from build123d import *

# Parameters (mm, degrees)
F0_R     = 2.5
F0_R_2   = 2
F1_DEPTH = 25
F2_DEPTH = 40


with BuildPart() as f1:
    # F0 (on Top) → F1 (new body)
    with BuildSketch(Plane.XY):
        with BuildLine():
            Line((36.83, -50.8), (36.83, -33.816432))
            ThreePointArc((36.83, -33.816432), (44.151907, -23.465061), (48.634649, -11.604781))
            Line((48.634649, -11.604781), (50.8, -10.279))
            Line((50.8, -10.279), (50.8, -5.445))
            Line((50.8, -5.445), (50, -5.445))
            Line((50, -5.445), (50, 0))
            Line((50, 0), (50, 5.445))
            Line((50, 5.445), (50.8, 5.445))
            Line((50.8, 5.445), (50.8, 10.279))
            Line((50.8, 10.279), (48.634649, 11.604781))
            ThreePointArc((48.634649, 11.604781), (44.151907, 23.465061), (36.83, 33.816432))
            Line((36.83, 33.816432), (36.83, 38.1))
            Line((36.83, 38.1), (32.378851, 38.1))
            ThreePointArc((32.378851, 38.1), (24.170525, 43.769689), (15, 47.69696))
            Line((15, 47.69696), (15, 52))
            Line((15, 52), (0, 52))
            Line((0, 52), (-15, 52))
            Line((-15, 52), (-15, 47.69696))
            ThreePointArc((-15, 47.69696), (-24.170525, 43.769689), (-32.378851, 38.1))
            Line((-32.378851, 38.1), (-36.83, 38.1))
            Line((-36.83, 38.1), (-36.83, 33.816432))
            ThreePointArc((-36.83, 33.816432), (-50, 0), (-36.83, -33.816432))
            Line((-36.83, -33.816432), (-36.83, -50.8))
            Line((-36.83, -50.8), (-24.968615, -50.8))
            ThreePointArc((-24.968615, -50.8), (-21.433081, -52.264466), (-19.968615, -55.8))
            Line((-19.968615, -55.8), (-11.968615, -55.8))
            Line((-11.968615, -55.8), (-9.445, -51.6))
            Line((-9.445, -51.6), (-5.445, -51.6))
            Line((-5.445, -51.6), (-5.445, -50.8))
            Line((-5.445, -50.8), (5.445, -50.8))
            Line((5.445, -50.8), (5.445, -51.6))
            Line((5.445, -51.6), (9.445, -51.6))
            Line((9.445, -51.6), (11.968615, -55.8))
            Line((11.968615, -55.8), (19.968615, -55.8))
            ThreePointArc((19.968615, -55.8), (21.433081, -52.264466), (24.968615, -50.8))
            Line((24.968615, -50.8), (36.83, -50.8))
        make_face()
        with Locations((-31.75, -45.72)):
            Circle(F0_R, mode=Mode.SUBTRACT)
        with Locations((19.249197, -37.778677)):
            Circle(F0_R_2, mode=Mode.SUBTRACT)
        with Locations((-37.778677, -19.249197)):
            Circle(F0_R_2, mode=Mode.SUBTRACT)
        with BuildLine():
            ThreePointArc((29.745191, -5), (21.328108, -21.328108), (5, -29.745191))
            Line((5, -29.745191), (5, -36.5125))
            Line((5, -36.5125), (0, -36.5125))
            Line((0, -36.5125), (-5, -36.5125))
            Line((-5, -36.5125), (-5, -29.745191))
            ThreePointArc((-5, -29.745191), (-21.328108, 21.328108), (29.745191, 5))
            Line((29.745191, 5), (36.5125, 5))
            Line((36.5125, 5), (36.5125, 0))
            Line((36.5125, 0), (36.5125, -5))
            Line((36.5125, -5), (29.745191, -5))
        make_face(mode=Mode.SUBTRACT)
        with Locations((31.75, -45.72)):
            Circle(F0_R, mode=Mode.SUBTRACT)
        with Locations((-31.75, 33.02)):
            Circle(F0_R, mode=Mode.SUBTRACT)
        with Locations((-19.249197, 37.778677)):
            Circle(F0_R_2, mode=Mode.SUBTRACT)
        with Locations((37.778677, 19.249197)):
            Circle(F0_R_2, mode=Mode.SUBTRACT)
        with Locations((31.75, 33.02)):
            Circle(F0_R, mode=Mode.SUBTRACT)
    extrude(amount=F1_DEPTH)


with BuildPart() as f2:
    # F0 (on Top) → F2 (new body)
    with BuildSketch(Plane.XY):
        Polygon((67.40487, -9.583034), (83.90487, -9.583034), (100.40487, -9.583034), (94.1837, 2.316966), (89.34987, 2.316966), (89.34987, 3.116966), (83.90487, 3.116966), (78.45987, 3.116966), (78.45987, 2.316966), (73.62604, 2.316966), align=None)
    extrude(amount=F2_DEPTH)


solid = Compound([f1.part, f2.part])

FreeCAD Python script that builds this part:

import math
import FreeCAD as App
import Part
import Sketcher
Q = App.Units.Quantity


def add_polygon(sketch, points):
    """Adds a closed chain of lines whose ends are joined by coincident constraints."""
    first, n = sketch.GeometryCount, len(points)
    for a, b in zip(points, points[1:] + points[:1]):
        sketch.addGeometry(Part.LineSegment(App.Vector(*a, 0), App.Vector(*b, 0)), False)
    for i in range(n):
        sketch.addConstraint(Sketcher.Constraint("Coincident", first + i, 2, first + (i + 1) % n, 1))

doc = App.newDocument("Part")
body = doc.addObject("PartDesign::Body", "Body")

sketch1 = doc.addObject("Sketcher::SketchObject", "Sketch")
body.addObject(sketch1)
sketch1.AttachmentSupport = (doc.XY_Plane, [""])
sketch1.MapMode = "FlatFace"
sketch1.addGeometry(Part.LineSegment(App.Vector(36.83, -50.8, 0), App.Vector(36.83, -33.816432, 0)), False)
sketch1.addGeometry(Part.ArcOfCircle(Part.Circle(App.Vector(-0.000005, 0.000004, 0), App.Vector(0, 0, 1), 50.000006), math.radians(-42.557412), math.radians(-13.420484)), False)
sketch1.addGeometry(Part.LineSegment(App.Vector(48.634649, -11.604781, 0), App.Vector(50.8, -10.279, 0)), False)
sketch1.addGeometry(Part.LineSegment(App.Vector(50.8, -10.279, 0), App.Vector(50.8, -5.445, 0)), False)
sketch1.addGeometry(Part.LineSegment(App.Vector(50.8, -5.445, 0), App.Vector(50, -5.445, 0)), False)
sketch1.addGeometry(Part.LineSegment(App.Vector(50, -5.445, 0), App.Vector(50, 5.445, 0)), False)
sketch1.addGeometry(Part.LineSegment(App.Vector(50, 5.445, 0), App.Vector(50.8, 5.445, 0)), False)
sketch1.addGeometry(Part.LineSegment(App.Vector(50.8, 5.445, 0), App.Vector(50.8, 10.279, 0)), False)
sketch1.addGeometry(Part.LineSegment(App.Vector(50.8, 10.279, 0), App.Vector(48.634649, 11.604781, 0)), False)
sketch1.addGeometry(Part.ArcOfCircle(Part.Circle(App.Vector(-0.000005, -0.000004, 0), App.Vector(0, 0, 1), 50.000006), math.radians(13.420484), math.radians(42.557412)), False)
sketch1.addGeometry(Part.LineSegment(App.Vector(36.83, 33.816432, 0), App.Vector(36.83, 38.1, 0)), False)
sketch1.addGeometry(Part.LineSegment(App.Vector(36.83, 38.1, 0), App.Vector(32.378851, 38.1, 0)), False)
sketch1.addGeometry(Part.ArcOfCircle(Part.Circle(App.Vector(-0.000009, -0.000017, 0), App.Vector(0, 0, 1), 50.000019), math.radians(49.640837), math.radians(72.542392)), False)
sketch1.addGeometry(Part.LineSegment(App.Vector(15, 47.69696, 0), App.Vector(15, 52, 0)), False)
sketch1.addGeometry(Part.LineSegment(App.Vector(15, 52, 0), App.Vector(-15, 52, 0)), False)
sketch1.addGeometry(Part.LineSegment(App.Vector(-15, 52, 0), App.Vector(-15, 47.69696, 0)), False)
sketch1.addGeometry(Part.ArcOfCircle(Part.Circle(App.Vector(0.000009, -0.000017, 0), App.Vector(0, 0, 1), 50.000019), math.radians(107.457608), math.radians(130.359163)), False)
sketch1.addGeometry(Part.LineSegment(App.Vector(-32.378851, 38.1, 0), App.Vector(-36.83, 38.1, 0)), False)
sketch1.addGeometry(Part.LineSegment(App.Vector(-36.83, 38.1, 0), App.Vector(-36.83, 33.816432, 0)), False)
sketch1.addGeometry(Part.ArcOfCircle(Part.Circle(App.Vector(-0.000001, 0, 0), App.Vector(0, 0, 1), 49.999999), math.radians(137.442587), math.radians(222.557413)), False)
sketch1.addGeometry(Part.LineSegment(App.Vector(-36.83, -33.816432, 0), App.Vector(-36.83, -50.8, 0)), False)
sketch1.addGeometry(Part.LineSegment(App.Vector(-36.83, -50.8, 0), App.Vector(-24.968615, -50.8, 0)), False)
sketch1.addGeometry(Part.ArcOfCircle(Part.Circle(App.Vector(-24.968615, -55.8, 0), App.Vector(0, 0, 1), 5), math.radians(-0.000004), math.radians(90.000004)), False)
sketch1.addGeometry(Part.LineSegment(App.Vector(-19.968615, -55.8, 0), App.Vector(-11.968615, -55.8, 0)), False)
sketch1.addGeometry(Part.LineSegment(App.Vector(-11.968615, -55.8, 0), App.Vector(-9.445, -51.6, 0)), False)
sketch1.addGeometry(Part.LineSegment(App.Vector(-9.445, -51.6, 0), App.Vector(-5.445, -51.6, 0)), False)
sketch1.addGeometry(Part.LineSegment(App.Vector(-5.445, -51.6, 0), App.Vector(-5.445, -50.8, 0)), False)
sketch1.addGeometry(Part.LineSegment(App.Vector(-5.445, -50.8, 0), App.Vector(5.445, -50.8, 0)), False)
sketch1.addGeometry(Part.LineSegment(App.Vector(5.445, -50.8, 0), App.Vector(5.445, -51.6, 0)), False)
sketch1.addGeometry(Part.LineSegment(App.Vector(5.445, -51.6, 0), App.Vector(9.445, -51.6, 0)), False)
sketch1.addGeometry(Part.LineSegment(App.Vector(9.445, -51.6, 0), App.Vector(11.968615, -55.8, 0)), False)
sketch1.addGeometry(Part.LineSegment(App.Vector(11.968615, -55.8, 0), App.Vector(19.968615, -55.8, 0)), False)
sketch1.addGeometry(Part.ArcOfCircle(Part.Circle(App.Vector(24.968615, -55.8, 0), App.Vector(0, 0, 1), 5), math.radians(89.999996), math.radians(180.000004)), False)
sketch1.addGeometry(Part.LineSegment(App.Vector(24.968615, -50.8, 0), App.Vector(36.83, -50.8, 0)), False)
sketch1.addGeometry(Part.Circle(App.Vector(-31.75, -45.72, 0), App.Vector(0, 0, 1), 2.5), False)
sketch1.addGeometry(Part.Circle(App.Vector(-37.778677, -19.249197, 0), App.Vector(0, 0, 1), 2), False)
sketch1.addGeometry(Part.Circle(App.Vector(19.249197, -37.778677, 0), App.Vector(0, 0, 1), 2), False)
sketch1.addGeometry(Part.Circle(App.Vector(31.75, -45.72, 0), App.Vector(0, 0, 1), 2.5), False)
sketch1.addGeometry(Part.Circle(App.Vector(-31.75, 33.02, 0), App.Vector(0, 0, 1), 2.5), False)
sketch1.addGeometry(Part.Circle(App.Vector(-19.249197, 37.778677, 0), App.Vector(0, 0, 1), 2), False)
sketch1.addGeometry(Part.LineSegment(App.Vector(36.5125, -5, 0), App.Vector(29.745191, -5, 0)), False)
sketch1.addGeometry(Part.ArcOfCircle(Part.Circle(App.Vector(0, 0, 0), App.Vector(0, 0, 1), 30.1625), math.radians(-80.458104), math.radians(-9.541896)), False)
sketch1.addGeometry(Part.LineSegment(App.Vector(5, -29.745191, 0), App.Vector(5, -36.5125, 0)), False)
sketch1.addGeometry(Part.LineSegment(App.Vector(5, -36.5125, 0), App.Vector(-5, -36.5125, 0)), False)
sketch1.addGeometry(Part.LineSegment(App.Vector(-5, -36.5125, 0), App.Vector(-5, -29.745191, 0)), False)
sketch1.addGeometry(Part.ArcOfCircle(Part.Circle(App.Vector(0, 0, 0), App.Vector(0, 0, 1), 30.1625), math.radians(9.541896), math.radians(260.458104)), False)
sketch1.addGeometry(Part.LineSegment(App.Vector(29.745191, 5, 0), App.Vector(36.5125, 5, 0)), False)
sketch1.addGeometry(Part.LineSegment(App.Vector(36.5125, 5, 0), App.Vector(36.5125, -5, 0)), False)
sketch1.addGeometry(Part.Circle(App.Vector(37.778677, 19.249197, 0), App.Vector(0, 0, 1), 2), False)
sketch1.addGeometry(Part.Circle(App.Vector(31.75, 33.02, 0), App.Vector(0, 0, 1), 2.5), False)
sketch1.addConstraint(Sketcher.Constraint("Coincident", 0, 2, 1, 1))
sketch1.addConstraint(Sketcher.Constraint("Coincident", 1, 2, 2, 1))
sketch1.addConstraint(Sketcher.Constraint("Coincident", 2, 2, 3, 1))
sketch1.addConstraint(Sketcher.Constraint("Coincident", 3, 2, 4, 1))
sketch1.addConstraint(Sketcher.Constraint("Coincident", 4, 2, 5, 1))
sketch1.addConstraint(Sketcher.Constraint("Coincident", 5, 2, 6, 1))
sketch1.addConstraint(Sketcher.Constraint("Coincident", 6, 2, 7, 1))
sketch1.addConstraint(Sketcher.Constraint("Coincident", 7, 2, 8, 1))
sketch1.addConstraint(Sketcher.Constraint("Coincident", 8, 2, 9, 1))
sketch1.addConstraint(Sketcher.Constraint("Coincident", 9, 2, 10, 1))
sketch1.addConstraint(Sketcher.Constraint("Coincident", 10, 2, 11, 1))
sketch1.addConstraint(Sketcher.Constraint("Coincident", 11, 2, 12, 1))
sketch1.addConstraint(Sketcher.Constraint("Coincident", 12, 2, 13, 1))
sketch1.addConstraint(Sketcher.Constraint("Coincident", 13, 2, 14, 1))
sketch1.addConstraint(Sketcher.Constraint("Coincident", 14, 2, 15, 1))
sketch1.addConstraint(Sketcher.Constraint("Coincident", 15, 2, 16, 1))
sketch1.addConstraint(Sketcher.Constraint("Coincident", 16, 2, 17, 1))
sketch1.addConstraint(Sketcher.Constraint("Coincident", 17, 2, 18, 1))
sketch1.addConstraint(Sketcher.Constraint("Coincident", 18, 2, 19, 1))
sketch1.addConstraint(Sketcher.Constraint("Coincident", 19, 2, 20, 1))
sketch1.addConstraint(Sketcher.Constraint("Coincident", 20, 2, 21, 1))
sketch1.addConstraint(Sketcher.Constraint("Tangent", 21, 2, 22, 2))
sketch1.addConstraint(Sketcher.Constraint("Coincident", 22, 1, 23, 1))
sketch1.addConstraint(Sketcher.Constraint("Coincident", 23, 2, 24, 1))
sketch1.addConstraint(Sketcher.Constraint("Coincident", 24, 2, 25, 1))
sketch1.addConstraint(Sketcher.Constraint("Coincident", 25, 2, 26, 1))
sketch1.addConstraint(Sketcher.Constraint("Coincident", 26, 2, 27, 1))
sketch1.addConstraint(Sketcher.Constraint("Coincident", 27, 2, 28, 1))
sketch1.addConstraint(Sketcher.Constraint("Coincident", 28, 2, 29, 1))
sketch1.addConstraint(Sketcher.Constraint("Coincident", 29, 2, 30, 1))
sketch1.addConstraint(Sketcher.Constraint("Coincident", 30, 2, 31, 1))
sketch1.addConstraint(Sketcher.Constraint("Coincident", 31, 2, 32, 2))
sketch1.addConstraint(Sketcher.Constraint("Tangent", 32, 1, 33, 1))
sketch1.addConstraint(Sketcher.Constraint("Coincident", 33, 2, 0, 1))
sketch1.addConstraint(Sketcher.Constraint("Coincident", 40, 2, 41, 2))
sketch1.addConstraint(Sketcher.Constraint("Coincident", 41, 1, 42, 1))
sketch1.addConstraint(Sketcher.Constraint("Coincident", 42, 2, 43, 1))
sketch1.addConstraint(Sketcher.Constraint("Coincident", 43, 2, 44, 1))
sketch1.addConstraint(Sketcher.Constraint("Coincident", 44, 2, 45, 2))
sketch1.addConstraint(Sketcher.Constraint("Coincident", 45, 1, 46, 1))
sketch1.addConstraint(Sketcher.Constraint("Coincident", 46, 2, 47, 1))
sketch1.addConstraint(Sketcher.Constraint("Coincident", 47, 2, 40, 1))
sketch1.addConstraint(Sketcher.Constraint("Vertical", 0))
sketch1.addConstraint(Sketcher.Constraint("Vertical", 3))
sketch1.addConstraint(Sketcher.Constraint("Horizontal", 4))
sketch1.addConstraint(Sketcher.Constraint("Vertical", 5))
sketch1.addConstraint(Sketcher.Constraint("Horizontal", 6))
sketch1.addConstraint(Sketcher.Constraint("Vertical", 7))
sketch1.addConstraint(Sketcher.Constraint("Vertical", 10))
sketch1.addConstraint(Sketcher.Constraint("Horizontal", 11))
sketch1.addConstraint(Sketcher.Constraint("Vertical", 13))
sketch1.addConstraint(Sketcher.Constraint("Horizontal", 14))
sketch1.addConstraint(Sketcher.Constraint("Vertical", 15))
sketch1.addConstraint(Sketcher.Constraint("Horizontal", 17))
sketch1.addConstraint(Sketcher.Constraint("Vertical", 18))
sketch1.addConstraint(Sketcher.Constraint("Vertical", 20))
sketch1.addConstraint(Sketcher.Constraint("Horizontal", 21))
sketch1.addConstraint(Sketcher.Constraint("Horizontal", 23))
sketch1.addConstraint(Sketcher.Constraint("Horizontal", 25))
sketch1.addConstraint(Sketcher.Constraint("Vertical", 26))
sketch1.addConstraint(Sketcher.Constraint("Horizontal", 27))
sketch1.addConstraint(Sketcher.Constraint("Vertical", 28))
sketch1.addConstraint(Sketcher.Constraint("Horizontal", 29))
sketch1.addConstraint(Sketcher.Constraint("Horizontal", 31))
sketch1.addConstraint(Sketcher.Constraint("Horizontal", 33))
sketch1.addConstraint(Sketcher.Constraint("Horizontal", 40))
sketch1.addConstraint(Sketcher.Constraint("Vertical", 42))
sketch1.addConstraint(Sketcher.Constraint("Horizontal", 43))
sketch1.addConstraint(Sketcher.Constraint("Vertical", 44))
sketch1.addConstraint(Sketcher.Constraint("Horizontal", 46))
sketch1.addConstraint(Sketcher.Constraint("Vertical", 47))
sketch1.addConstraint(Sketcher.Constraint("Coincident", 1, 3, -1, 1))
sketch1.addConstraint(Sketcher.Constraint("Coincident", 9, 3, -1, 1))
sketch1.addConstraint(Sketcher.Constraint("Coincident", 19, 3, -1, 1))
sketch1.addConstraint(Sketcher.Constraint("Coincident", 41, 3, -1, 1))
sketch1.addConstraint(Sketcher.Constraint("Coincident", 45, 3, -1, 1))
sketch1.addConstraint(Sketcher.Constraint("Equal", 1, 9))
sketch1.addConstraint(Sketcher.Constraint("Equal", 12, 16))
sketch1.addConstraint(Sketcher.Constraint("Equal", 22, 32))
sketch1.addConstraint(Sketcher.Constraint("Equal", 35, 36))
sketch1.addConstraint(Sketcher.Constraint("Equal", 34, 37))
sketch1.addConstraint(Sketcher.Constraint("Equal", 37, 38))
sketch1.addConstraint(Sketcher.Constraint("Equal", 36, 39))
sketch1.addConstraint(Sketcher.Constraint("Equal", 41, 45))
sketch1.addConstraint(Sketcher.Constraint("Equal", 39, 48))
sketch1.addConstraint(Sketcher.Constraint("Equal", 38, 49))
sketch1.addConstraint(Sketcher.Constraint("Symmetric", 36, 3, 39, 3, -1, 1))
sketch1.addConstraint(Sketcher.Constraint("Symmetric", 35, 3, 48, 3, -1, 1))
sketch1.addConstraint(Sketcher.Constraint("Symmetric", 0, 2, 18, 2, -1, 1))
sketch1.addConstraint(Sketcher.Constraint("Symmetric", 12, 3, 16, 3, -2))
sketch1.addConstraint(Sketcher.Constraint("Symmetric", 22, 3, 32, 3, -2))
sketch1.addConstraint(Sketcher.Constraint("Symmetric", 34, 3, 37, 3, -2))
sketch1.addConstraint(Sketcher.Constraint("Symmetric", 38, 3, 49, 3, -2))
sketch1.addConstraint(Sketcher.Constraint("Symmetric", 10, 2, 17, 2, -2))
sketch1.addConstraint(Sketcher.Constraint("Symmetric", 25, 2, 28, 2, -2))
sketch1.addConstraint(Sketcher.Constraint("Symmetric", 23, 2, 30, 2, -2))
sketch1.addConstraint(Sketcher.Constraint("Symmetric", 3, 2, 6, 2, -1))
sketch1.addConstraint(Sketcher.Constraint("Horizontal", 12, 2, 15, 2))
sketch1.addConstraint(Sketcher.Constraint("Horizontal", 0, 2, 19, 2))
sketch1.addConstraint(Sketcher.Constraint("Horizontal", 32, 3, 22, 1))
sketch1.addConstraint(Sketcher.Constraint("Horizontal", 21, 2, 26, 2))
sketch1.addConstraint(Sketcher.Constraint("Horizontal", 41, 1, 44, 2))
sketch1.addConstraint(Sketcher.Constraint("Vertical", 34, 3, 38, 3))
sketch1.addConstraint(Sketcher.Constraint("Vertical", 1, 2, 8, 2))
sketch1.addConstraint(Sketcher.Constraint("Vertical", 40, 2, 45, 1))
sketch1.addConstraint(Sketcher.Constraint("Equal", 25, 29))
sketch1.addConstraint(Sketcher.Constraint("Equal", 27, 5))
sketch1.addConstraint(Sketcher.Constraint("Equal", 3, 7))
sketch1.addConstraint(Sketcher.Constraint("Equal", 6, 26))
sketch1.addConstraint(Sketcher.Constraint("Equal", 46, 42))
sketch1.addConstraint(Sketcher.Constraint("Equal", 43, 47))
sketch1.addConstraint(Sketcher.Constraint("Diameter", 34, Q("5 mm")))
sketch1.addConstraint(Sketcher.Constraint("Diameter", 35, Q("4 mm")))
sketch1.addConstraint(Sketcher.Constraint("Radius", 19, Q("49.999999 mm")))
sketch1.addConstraint(Sketcher.Constraint("Radius", 22, Q("5 mm")))
sketch1.addConstraint(Sketcher.Constraint("DistanceX", 14, 2, 14, 1, Q("30 mm")))
sketch1.addConstraint(Sketcher.Constraint("DistanceX", 23, 1, 23, 2, Q("8 mm")))
sketch1.addConstraint(Sketcher.Constraint("DistanceX", 25, 1, 25, 2, Q("4 mm")))
sketch1.addConstraint(Sketcher.Constraint("DistanceX", 43, 2, 43, 1, Q("10 mm")))
sketch1.addConstraint(Sketcher.Constraint("Angle", 24, Q("58.999996 deg")))
sketch1.addConstraint(Sketcher.Constraint("DistanceX", 4, 2, 4, 1, Q("0.8 mm")))
sketch1.addConstraint(Sketcher.Constraint("DistanceX", -1, 1, 4, 2, Q("50 mm")))
sketch1.addConstraint(Sketcher.Constraint("DistanceY", -1, 1, 13, 2, Q("52 mm")))
sketch1.addConstraint(Sketcher.Constraint("DistanceX", 27, 1, 27, 2, Q("10.89 mm")))
sketch1.addConstraint(Sketcher.Constraint("DistanceY", 22, 3, -1, 1, Q("55.8 mm")))
sketch1.addConstraint(Sketcher.Constraint("DistanceY", -1, 1, 10, 2, Q("38.1 mm")))
sketch1.addConstraint(Sketcher.Constraint("Radius", 41, Q("30.1625 mm")))
sketch1.addConstraint(Sketcher.Constraint("DistanceY", 3, 1, 3, 2, Q("4.834 mm")))
sketch1.addConstraint(Sketcher.Constraint("DistanceX", 34, 3, -1, 1, Q("31.75 mm")))
sketch1.addConstraint(Sketcher.Constraint("DistanceY", 34, 3, -1, 1, Q("45.72 mm")))
sketch1.addConstraint(Sketcher.Constraint("DistanceY", -1, 1, 38, 3, Q("33.02 mm")))
sketch1.addConstraint(Sketcher.Constraint("DistanceX", -1, 1, 0, 2, Q("36.83 mm")))
sketch1.addConstraint(Sketcher.Constraint("Radius", 12, Q("50.000019 mm")))
sketch1.addConstraint(Sketcher.Constraint("DistanceX", 11, 2, 11, 1, Q("4.451149 mm")))
sketch1.addConstraint(Sketcher.Constraint("DistanceX", 40, 2, 40, 1, Q("6.767309 mm")))
sketch1.addConstraint(Sketcher.Constraint("DistanceY", 13, 1, 13, 2, Q("4.30304 mm")))
sketch1.addConstraint(Sketcher.Constraint("DistanceY", 35, 3, 1, 3, Q("19.249201 mm")))
sketch1.addConstraint(Sketcher.Constraint("DistanceX", 9, 3, 36, 3, Q("19.249202 mm")))
sketch1.addConstraint(Sketcher.Constraint("DistanceX", 11, 2, 8, 2, Q("16.255798 mm")))
sketch1.addConstraint(Sketcher.Constraint("DistanceY", 36, 3, 16, 3, Q("37.77866 mm")))
sketch1.addConstraint(Sketcher.Constraint("DistanceX", 19, 3, 48, 3, Q("37.778678 mm")))
pad1 = doc.addObject("PartDesign::Pad", "Pad")
body.addObject(pad1)
pad1.Profile = sketch1
pad1.Length = 25
body2 = doc.addObject("PartDesign::Body", "Body001")

sketch2 = doc.addObject("Sketcher::SketchObject", "Sketch001")
body2.addObject(sketch2)
sketch2.AttachmentSupport = (doc.getObject("XY_Plane001"), [""])
sketch2.MapMode = "FlatFace"
add_polygon(sketch2, [(67.40487, -9.583034), (100.40487, -9.583034), (94.1837, 2.316966), (89.34987, 2.316966), (89.34987, 3.116966), (78.45987, 3.116966), (78.45987, 2.316966), (73.62604, 2.316966)])
sketch2.addConstraint(Sketcher.Constraint("Horizontal", 0))
sketch2.addConstraint(Sketcher.Constraint("Horizontal", 2))
sketch2.addConstraint(Sketcher.Constraint("Vertical", 3))
sketch2.addConstraint(Sketcher.Constraint("Horizontal", 4))
sketch2.addConstraint(Sketcher.Constraint("Vertical", 5))
sketch2.addConstraint(Sketcher.Constraint("Horizontal", 6))
sketch2.addConstraint(Sketcher.Constraint("Horizontal", 2, 2, 5, 2))
sketch2.addConstraint(Sketcher.Constraint("Equal", 2, 6))
sketch2.addConstraint(Sketcher.Constraint("Equal", 1, 7))
sketch2.addConstraint(Sketcher.Constraint("DistanceX", 0, 1, 0, 2, Q("33 mm")))
sketch2.addConstraint(Sketcher.Constraint("DistanceY", 3, 1, 3, 2, Q("0.8 mm")))
sketch2.addConstraint(Sketcher.Constraint("Angle", 1, Q("117.600001 deg")))
sketch2.addConstraint(Sketcher.Constraint("DistanceX", 4, 2, 4, 1, Q("10.89 mm")))
sketch2.addConstraint(Sketcher.Constraint("DistanceY", 0, 2, 1, 2, Q("11.9 mm")))
sketch2.addConstraint(Sketcher.Constraint("DistanceX", -1, 1, 1, 2, Q("94.1837 mm")))
sketch2.addConstraint(Sketcher.Constraint("DistanceY", 0, 2, -1, 1, Q("9.583034 mm")))
pad2 = doc.addObject("PartDesign::Pad", "Pad001")
body2.addObject(pad2)
pad2.Profile = sketch2
pad2.Length = 40

doc.recompute()
